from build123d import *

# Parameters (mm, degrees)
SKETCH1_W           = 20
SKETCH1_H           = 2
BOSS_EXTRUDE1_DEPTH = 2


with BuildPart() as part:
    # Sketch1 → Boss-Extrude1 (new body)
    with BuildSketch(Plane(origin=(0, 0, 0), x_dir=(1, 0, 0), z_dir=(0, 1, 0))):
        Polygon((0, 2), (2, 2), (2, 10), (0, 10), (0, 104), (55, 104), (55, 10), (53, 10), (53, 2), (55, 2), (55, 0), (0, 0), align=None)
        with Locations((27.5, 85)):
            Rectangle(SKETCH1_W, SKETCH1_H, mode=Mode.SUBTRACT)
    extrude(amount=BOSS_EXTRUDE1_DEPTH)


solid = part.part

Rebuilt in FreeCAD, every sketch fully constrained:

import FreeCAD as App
import Part
import Sketcher

V = App.Vector

doc = App.newDocument("Part")
body = doc.addObject("PartDesign::Body", "Body")

# Sketch on XZ plane
sketch1 = doc.addObject("Sketcher::SketchObject", "Sketch")
body.addObject(sketch1)
sketch1.AttachmentSupport = (doc.XZ_Plane, [""])
sketch1.MapMode = "FlatFace"
sketch1.addGeometry([
    Part.LineSegment(V(2, -2, 0), V(0, -2, 0)),  # 0
    Part.LineSegment(V(0, -2, 0), V(0, 0, 0)),  # 1
    Part.LineSegment(V(0, 0, 0), V(55, 0, 0)),  # 2
    Part.LineSegment(V(55, 0, 0), V(55, -2, 0)),  # 3
    Part.LineSegment(V(55, -2, 0), V(53, -2, 0)),  # 4
    Part.LineSegment(V(53, -2, 0), V(53, -10, 0)),  # 5
    Part.LineSegment(V(53, -10, 0), V(55, -10, 0)),  # 6
    Part.LineSegment(V(55, -10, 0), V(55, -104, 0)),  # 7
    Part.LineSegment(V(55, -104, 0), V(0, -104, 0)),  # 8
    Part.LineSegment(V(0, -104, 0), V(0, -10, 0)),  # 9
    Part.LineSegment(V(0, -10, 0), V(2, -10, 0)),  # 10
    Part.LineSegment(V(2, -10, 0), V(2, -2, 0)),  # 11
    Part.LineSegment(V(17.5, -84, 0), V(17.5, -86, 0)),  # 12
    Part.LineSegment(V(17.5, -86, 0), V(37.5, -86, 0)),  # 13
    Part.LineSegment(V(37.5, -86, 0), V(37.5, -84, 0)),  # 14
    Part.LineSegment(V(37.5, -84, 0), V(17.5, -84, 0)),  # 15
], False)
sketch1.addConstraint([
    Sketcher.Constraint("Coincident", 0, 2, 1, 1),
    Sketcher.Constraint("Coincident", 1, 2, 2, 1),
    Sketcher.Constraint("Coincident", 2, 2, 3, 1),
    Sketcher.Constraint("Coincident", 3, 2, 4, 1),
    Sketcher.Constraint("Coincident", 4, 2, 5, 1),
    Sketcher.Constraint("Coincident", 5, 2, 6, 1),
    Sketcher.Constraint("Coincident", 6, 2, 7, 1),
    Sketcher.Constraint("Coincident", 7, 2, 8, 1),
    Sketcher.Constraint("Coincident", 8, 2, 9, 1),
    Sketcher.Constraint("Coincident", 9, 2, 10, 1),
    Sketcher.Constraint("Coincident", 10, 2, 11, 1),
    Sketcher.Constraint("Coincident", 11, 2, 0, 1),
    Sketcher.Constraint("Coincident", 12, 2, 13, 1),
    Sketcher.Constraint("Coincident", 13, 2, 14, 1),
    Sketcher.Constraint("Coincident", 14, 2, 15, 1),
    Sketcher.Constraint("Coincident", 15, 2, 12, 1),
    Sketcher.Constraint("Horizontal", 0),
    Sketcher.Constraint("Vertical", 1),
    Sketcher.Constraint("Horizontal", 2),
    Sketcher.Constraint("Vertical", 3),
    Sketcher.Constraint("Horizontal", 4),
    Sketcher.Constraint("Vertical", 5),
    Sketcher.Constraint("Horizontal", 6),
    Sketcher.Constraint("Vertical", 7),
    Sketcher.Constraint("Horizontal", 8),
    Sketcher.Constraint("Vertical", 9),
    Sketcher.Constraint("Horizontal", 10),
    Sketcher.Constraint("Vertical", 11),
    Sketcher.Constraint("Vertical", 12),
    Sketcher.Constraint("Horizontal", 13),
    Sketcher.Constraint("Vertical", 14),
    Sketcher.Constraint("Horizontal", 15),
    Sketcher.Constraint("Coincident", 1, 2, -1, 1),
    Sketcher.Constraint("PointOnObject", 8, 2, -2),
    Sketcher.Constraint("Horizontal", 0, 2, 3, 2),
    Sketcher.Constraint("Horizontal", 6, 2, 9, 2),
    Sketcher.Constraint("Vertical", 3, 2, 6, 2),
    Sketcher.Constraint("Equal", 0, 4),
    Sketcher.Constraint("Equal", 10, 1),
    Sketcher.Constraint("Equal", 3, 12),
    Sketcher.Constraint("DistanceX", 0, 2, 0, 1, 2.0),
    Sketcher.Constraint("DistanceX", 2, 1, 2, 2, 55.0),
    Sketcher.Constraint("DistanceX", 13, 1, 13, 2, 20.0),
    Sketcher.Constraint("DistanceY", 5, 2, 5, 1, 8.0),
    Sketcher.Constraint("DistanceY", 7, 2, 7, 1, 94.0),
    Sketcher.Constraint("DistanceY", 12, 2, -1, 1, 86.0),
    Sketcher.Constraint("DistanceX", -1, 1, 12, 2, 17.5),
])
pad1 = doc.addObject("PartDesign::Pad", "Pad")
body.addObject(pad1)
pad1.Profile = sketch1
pad1.Length = 2
pad1.Reversed = True

doc.recompute()
